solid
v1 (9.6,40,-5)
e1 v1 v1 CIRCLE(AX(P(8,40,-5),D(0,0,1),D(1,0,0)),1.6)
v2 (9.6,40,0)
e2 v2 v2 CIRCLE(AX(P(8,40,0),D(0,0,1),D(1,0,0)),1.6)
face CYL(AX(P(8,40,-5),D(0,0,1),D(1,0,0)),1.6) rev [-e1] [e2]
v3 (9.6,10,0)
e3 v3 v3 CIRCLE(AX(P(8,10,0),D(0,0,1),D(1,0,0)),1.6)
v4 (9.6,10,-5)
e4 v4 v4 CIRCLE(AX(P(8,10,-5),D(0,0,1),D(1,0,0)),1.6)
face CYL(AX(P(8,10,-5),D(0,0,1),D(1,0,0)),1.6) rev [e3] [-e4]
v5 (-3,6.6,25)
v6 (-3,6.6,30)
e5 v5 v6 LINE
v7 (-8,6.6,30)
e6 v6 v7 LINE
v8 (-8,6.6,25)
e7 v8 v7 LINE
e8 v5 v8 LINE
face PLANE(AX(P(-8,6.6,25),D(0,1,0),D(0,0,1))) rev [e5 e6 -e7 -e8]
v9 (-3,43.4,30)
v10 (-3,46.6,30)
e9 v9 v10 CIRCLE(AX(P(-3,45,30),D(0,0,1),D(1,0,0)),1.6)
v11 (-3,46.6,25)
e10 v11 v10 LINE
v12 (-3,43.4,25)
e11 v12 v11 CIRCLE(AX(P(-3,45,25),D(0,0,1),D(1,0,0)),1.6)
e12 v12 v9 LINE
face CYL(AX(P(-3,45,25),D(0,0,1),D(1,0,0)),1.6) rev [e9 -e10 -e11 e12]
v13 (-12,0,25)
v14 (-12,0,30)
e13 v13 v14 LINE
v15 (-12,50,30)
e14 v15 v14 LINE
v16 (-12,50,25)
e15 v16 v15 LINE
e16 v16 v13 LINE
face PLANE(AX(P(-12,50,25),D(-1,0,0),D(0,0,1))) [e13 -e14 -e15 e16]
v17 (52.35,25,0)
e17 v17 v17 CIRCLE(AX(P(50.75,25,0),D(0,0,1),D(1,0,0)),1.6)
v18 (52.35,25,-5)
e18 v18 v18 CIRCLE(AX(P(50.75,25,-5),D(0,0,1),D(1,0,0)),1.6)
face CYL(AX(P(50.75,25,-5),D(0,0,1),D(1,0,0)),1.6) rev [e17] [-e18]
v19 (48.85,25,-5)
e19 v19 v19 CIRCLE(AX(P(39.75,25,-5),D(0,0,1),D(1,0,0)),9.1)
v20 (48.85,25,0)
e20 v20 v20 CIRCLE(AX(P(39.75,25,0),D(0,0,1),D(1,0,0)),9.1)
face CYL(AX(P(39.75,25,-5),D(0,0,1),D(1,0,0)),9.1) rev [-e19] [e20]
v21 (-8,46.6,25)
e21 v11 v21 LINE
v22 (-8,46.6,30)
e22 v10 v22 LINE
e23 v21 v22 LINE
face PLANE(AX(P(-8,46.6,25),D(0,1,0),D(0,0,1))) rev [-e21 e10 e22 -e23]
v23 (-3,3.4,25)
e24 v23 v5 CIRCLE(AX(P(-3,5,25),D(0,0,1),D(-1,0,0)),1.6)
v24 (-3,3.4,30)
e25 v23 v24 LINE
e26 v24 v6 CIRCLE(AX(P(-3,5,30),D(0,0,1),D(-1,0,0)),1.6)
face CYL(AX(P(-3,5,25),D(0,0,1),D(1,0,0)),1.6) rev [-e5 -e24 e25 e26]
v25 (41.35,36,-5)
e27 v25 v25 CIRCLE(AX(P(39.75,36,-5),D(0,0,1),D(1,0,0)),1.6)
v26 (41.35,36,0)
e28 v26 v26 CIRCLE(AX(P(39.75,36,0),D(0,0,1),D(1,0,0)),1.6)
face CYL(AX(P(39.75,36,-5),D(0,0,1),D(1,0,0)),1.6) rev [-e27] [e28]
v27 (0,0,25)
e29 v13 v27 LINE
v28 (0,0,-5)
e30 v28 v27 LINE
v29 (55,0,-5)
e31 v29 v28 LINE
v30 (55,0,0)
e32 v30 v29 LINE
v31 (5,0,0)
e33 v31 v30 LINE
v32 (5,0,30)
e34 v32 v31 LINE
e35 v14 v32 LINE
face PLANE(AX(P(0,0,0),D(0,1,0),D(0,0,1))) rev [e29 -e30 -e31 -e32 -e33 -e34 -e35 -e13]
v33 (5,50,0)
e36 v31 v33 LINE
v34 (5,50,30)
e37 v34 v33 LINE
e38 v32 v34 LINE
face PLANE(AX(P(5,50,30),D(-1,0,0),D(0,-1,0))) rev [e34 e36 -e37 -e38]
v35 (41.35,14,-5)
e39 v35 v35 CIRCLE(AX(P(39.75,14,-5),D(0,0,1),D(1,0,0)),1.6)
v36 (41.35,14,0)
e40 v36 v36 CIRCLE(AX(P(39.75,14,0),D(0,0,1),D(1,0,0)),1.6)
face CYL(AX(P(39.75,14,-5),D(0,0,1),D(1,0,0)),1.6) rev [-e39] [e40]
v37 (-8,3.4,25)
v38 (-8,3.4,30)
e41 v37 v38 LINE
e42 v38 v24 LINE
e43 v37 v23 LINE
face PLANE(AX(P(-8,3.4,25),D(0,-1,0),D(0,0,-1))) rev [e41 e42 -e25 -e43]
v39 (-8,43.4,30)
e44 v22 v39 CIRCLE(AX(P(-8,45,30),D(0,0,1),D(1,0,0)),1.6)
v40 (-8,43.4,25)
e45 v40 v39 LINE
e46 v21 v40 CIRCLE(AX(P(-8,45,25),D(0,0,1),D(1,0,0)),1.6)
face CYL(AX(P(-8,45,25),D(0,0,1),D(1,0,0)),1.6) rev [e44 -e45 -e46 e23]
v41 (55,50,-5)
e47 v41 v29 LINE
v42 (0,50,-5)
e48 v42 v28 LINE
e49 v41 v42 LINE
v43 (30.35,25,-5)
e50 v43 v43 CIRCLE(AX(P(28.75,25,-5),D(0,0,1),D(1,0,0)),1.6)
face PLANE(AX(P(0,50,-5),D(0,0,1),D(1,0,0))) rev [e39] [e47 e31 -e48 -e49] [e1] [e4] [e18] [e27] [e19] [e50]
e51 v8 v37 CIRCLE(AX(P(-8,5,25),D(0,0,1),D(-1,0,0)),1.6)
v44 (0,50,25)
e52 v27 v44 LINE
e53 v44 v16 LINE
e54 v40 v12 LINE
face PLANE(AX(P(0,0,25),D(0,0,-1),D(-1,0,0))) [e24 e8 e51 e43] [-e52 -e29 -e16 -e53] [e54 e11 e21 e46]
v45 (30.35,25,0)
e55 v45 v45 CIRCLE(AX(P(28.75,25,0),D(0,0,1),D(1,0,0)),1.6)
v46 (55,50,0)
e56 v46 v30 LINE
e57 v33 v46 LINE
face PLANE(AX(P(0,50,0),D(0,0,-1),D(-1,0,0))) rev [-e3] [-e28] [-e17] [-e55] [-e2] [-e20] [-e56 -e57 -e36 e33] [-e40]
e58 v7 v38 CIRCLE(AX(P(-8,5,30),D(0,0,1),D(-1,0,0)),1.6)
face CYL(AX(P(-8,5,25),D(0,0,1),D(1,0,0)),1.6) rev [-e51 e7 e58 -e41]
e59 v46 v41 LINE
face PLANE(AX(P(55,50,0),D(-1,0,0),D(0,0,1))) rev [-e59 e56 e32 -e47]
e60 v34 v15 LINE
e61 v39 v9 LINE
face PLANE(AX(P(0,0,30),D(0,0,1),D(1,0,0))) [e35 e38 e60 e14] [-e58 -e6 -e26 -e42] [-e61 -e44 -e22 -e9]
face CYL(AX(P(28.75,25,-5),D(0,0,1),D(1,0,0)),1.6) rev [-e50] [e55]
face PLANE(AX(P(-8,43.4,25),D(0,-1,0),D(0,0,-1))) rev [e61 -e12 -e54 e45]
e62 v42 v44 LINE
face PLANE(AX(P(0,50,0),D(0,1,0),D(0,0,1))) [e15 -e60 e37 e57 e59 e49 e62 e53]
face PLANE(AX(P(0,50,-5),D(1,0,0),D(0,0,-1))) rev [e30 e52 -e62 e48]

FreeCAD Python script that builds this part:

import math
import FreeCAD as App
import Part
import Sketcher
from FreeCAD import Vector
Q = App.Units.Quantity

doc = App.newDocument("Part")
body = doc.addObject("PartDesign::Body", "Body")

sketch1 = doc.addObject("Sketcher::SketchObject", "Sketch")
body.addObject(sketch1)
sketch1.AttachmentSupport = (doc.XZ_Plane, [""])
sketch1.MapMode = "FlatFace"
sketch1.addGeometry([
    Part.LineSegment(Vector(0, -5, 0), Vector(0, 0, 0)),
    Part.LineSegment(Vector(0, 0, 0), Vector(55, 0, 0)),
    Part.LineSegment(Vector(55, 0, 0), Vector(55, -5, 0)),
    Part.LineSegment(Vector(55, -5, 0), Vector(0, -5, 0)),
], False)
sketch1.addConstraint([
    Sketcher.Constraint("Coincident", 0, 2, 1, 1),
    Sketcher.Constraint("Coincident", 1, 2, 2, 1),
    Sketcher.Constraint("Coincident", 2, 2, 3, 1),
    Sketcher.Constraint("Coincident", 3, 2, 0, 1),
    Sketcher.Constraint("Vertical", 0),
    Sketcher.Constraint("Horizontal", 1),
    Sketcher.Constraint("Vertical", 2),
    Sketcher.Constraint("Horizontal", 3),
    Sketcher.Constraint("Coincident", 0, 2, -1, 1),
    Sketcher.Constraint("DistanceX", 1, 1, 1, 2, Q("55 mm")),
    Sketcher.Constraint("DistanceY", 0, 1, 0, 2, Q("5 mm")),
])
pad1 = doc.addObject("PartDesign::Pad", "Pad")
body.addObject(pad1)
pad1.Profile = sketch1
pad1.Length = 50
pad1.Reversed = True

sketch2 = doc.addObject("Sketcher::SketchObject", "Sketch001")
body.addObject(sketch2)
sketch2.AttachmentSupport = (doc.XY_Plane, [""])
sketch2.MapMode = "FlatFace"
sketch2.addGeometry([
    Part.Circle(Vector(39.8, 25, 0), Vector(0, 0, 1), 9.1),
    Part.Circle(Vector(39.8, 36, 0), Vector(0, 0, 1), 1.6),
    Part.Circle(Vector(50.8, 25, 0), Vector(0, 0, 1), 1.6),
    Part.Circle(Vector(39.8, 14, 0), Vector(0, 0, 1), 1.6),
    Part.Circle(Vector(28.8, 25, 0), Vector(0, 0, 1), 1.6),
    Part.Circle(Vector(8, 40, 0), Vector(0, 0, 1), 1.6),
    Part.Circle(Vector(8, 10, 0), Vector(0, 0, 1), 1.6),
], False)
sketch2.addConstraint([
    Sketcher.Constraint("Equal", 1, 2),
    Sketcher.Constraint("Equal", 2, 3),
    Sketcher.Constraint("Equal", 3, 4),
    Sketcher.Constraint("Equal", 4, 5),
    Sketcher.Constraint("Equal", 5, 6),
    Sketcher.Constraint("Horizontal", 0, 3, 2, 3),
    Sketcher.Constraint("Horizontal", 2, 3, 4, 3),
    Sketcher.Constraint("Vertical", 0, 3, 1, 3),
    Sketcher.Constraint("Vertical", 1, 3, 3, 3),
    Sketcher.Constraint("Vertical", 5, 3, 6, 3),
    Sketcher.Constraint("Diameter", 0, Q("18.2 mm")),
    Sketcher.Constraint("Diameter", 1, Q("3.2 mm")),
    Sketcher.Constraint("DistanceY", -1, 1, 0, 3, Q("25 mm")),
    Sketcher.Constraint("DistanceY", -1, 1, 1, 3, Q("36 mm")),
    Sketcher.Constraint("DistanceY", -1, 1, 3, 3, Q("14 mm")),
    Sketcher.Constraint("DistanceX", -1, 1, 5, 3, Q("8 mm")),
    Sketcher.Constraint("DistanceY", -1, 1, 5, 3, Q("40 mm")),
    Sketcher.Constraint("DistanceY", -1, 1, 6, 3, Q("10 mm")),
    Sketcher.Constraint("DistanceX", 0, 3, 2, 3, Q("11 mm")),
    Sketcher.Constraint("DistanceX", 4, 3, 0, 3, Q("11 mm")),
    Sketcher.Constraint("DistanceX", -1, 1, 0, 3, Q("39.75 mm")),
])
pocket1 = doc.addObject("PartDesign::Pocket", "Pocket")
body.addObject(pocket1)
pocket1.Profile = sketch2
pocket1.Type = "ThroughAll"

sketch3 = doc.addObject("Sketcher::SketchObject", "Sketch002")
body.addObject(sketch3)
sketch3.AttachmentSupport = (doc.XY_Plane, [""])
sketch3.MapMode = "FlatFace"
sketch3.addGeometry([
    Part.LineSegment(Vector(0, 50, 0), Vector(0, 0, 0)),
    Part.LineSegment(Vector(0, 0, 0), Vector(5, 0, 0)),
    Part.LineSegment(Vector(5, 0, 0), Vector(5, 50, 0)),
    Part.LineSegment(Vector(5, 50, 0), Vector(0, 50, 0)),
], False)
sketch3.addConstraint([
    Sketcher.Constraint("Coincident", 0, 2, 1, 1),
    Sketcher.Constraint("Coincident", 1, 2, 2, 1),
    Sketcher.Constraint("Coincident", 2, 2, 3, 1),
    Sketcher.Constraint("Coincident", 3, 2, 0, 1),
    Sketcher.Constraint("Vertical", 0),
    Sketcher.Constraint("Horizontal", 1),
    Sketcher.Constraint("Vertical", 2),
    Sketcher.Constraint("Horizontal", 3),
    Sketcher.Constraint("Coincident", 0, 2, -1, 1),
    Sketcher.Constraint("DistanceX", 1, 1, 1, 2, Q("5 mm")),
    Sketcher.Constraint("DistanceY", 0, 2, 0, 1, Q("50 mm")),
])
pad2 = doc.addObject("PartDesign::Pad", "Pad001")
body.addObject(pad2)
pad2.Profile = sketch3
pad2.Length = 30

sketch4 = doc.addObject("Sketcher::SketchObject", "Sketch003")
body.addObject(sketch4)
sketch4.AttachmentSupport = (doc.XY_Plane, [""])
sketch4.MapMode = "FlatFace"
sketch4.AttachmentOffset = App.Placement(Vector(0, 0, 30), App.Rotation())
sketch4.addGeometry([
    Part.LineSegment(Vector(-12, 50, 0), Vector(-12, 0, 0)),
    Part.LineSegment(Vector(-12, 0, 0), Vector(5, 0, 0)),
    Part.LineSegment(Vector(5, 0, 0), Vector(5, 50, 0)),
    Part.LineSegment(Vector(5, 50, 0), Vector(-12, 50, 0)),
    Part.LineSegment(Vector(-3, 3.4, 0), Vector(-8, 3.4, 0)),
    Part.ArcOfCircle(Part.Circle(Vector(-8, 5, 0), Vector(0, 0, 1), 1.6), math.radians(90), math.radians(270)),
    Part.LineSegment(Vector(-8, 6.6, 0), Vector(-3, 6.6, 0)),
    Part.ArcOfCircle(Part.Circle(Vector(-3, 5, 0), Vector(0, 0, 1), 1.6), math.radians(-90), math.radians(90)),
    Part.ArcOfCircle(Part.Circle(Vector(-8, 45, 0), Vector(0, 0, 1), 1.6), math.radians(90), math.radians(270)),
    Part.LineSegment(Vector(-8, 46.6, 0), Vector(-3, 46.6, 0)),
    Part.ArcOfCircle(Part.Circle(Vector(-3, 45, 0), Vector(0, 0, 1), 1.6), math.radians(-90), math.radians(90)),
    Part.LineSegment(Vector(-3, 43.4, 0), Vector(-8, 43.4, 0)),
], False)
sketch4.addConstraint([
    Sketcher.Constraint("Coincident", 0, 2, 1, 1),
    Sketcher.Constraint("Coincident", 1, 2, 2, 1),
    Sketcher.Constraint("Coincident", 2, 2, 3, 1),
    Sketcher.Constraint("Coincident", 3, 2, 0, 1),
    Sketcher.Constraint("Tangent", 4, 2, 5, 2),
    Sketcher.Constraint("Tangent", 5, 1, 6, 1),
    Sketcher.Constraint("Tangent", 6, 2, 7, 2),
    Sketcher.Constraint("Tangent", 7, 1, 4, 1),
    Sketcher.Constraint("Tangent", 8, 1, 9, 1),
    Sketcher.Constraint("Tangent", 9, 2, 10, 2),
    Sketcher.Constraint("Tangent", 10, 1, 11, 1),
    Sketcher.Constraint("Tangent", 11, 2, 8, 2),
    Sketcher.Constraint("Vertical", 0),
    Sketcher.Constraint("Horizontal", 1),
    Sketcher.Constraint("Vertical", 2),
    Sketcher.Constraint("Horizontal", 3),
    Sketcher.Constraint("Horizontal", 4),
    Sketcher.Constraint("Horizontal", 6),
    Sketcher.Constraint("Horizontal", 9),
    Sketcher.Constraint("Horizontal", 11),
    Sketcher.Constraint("Equal", 7, 8),
    Sketcher.Constraint("PointOnObject", 0, 2, -1),
    Sketcher.Constraint("Vertical", 5, 3, 8, 3),
    Sketcher.Constraint("Vertical", 7, 3, 10, 3),
    Sketcher.Constraint("Radius", 5, Q("1.6 mm")),
    Sketcher.Constraint("DistanceX", 1, 1, 1, 2, Q("17 mm")),
    Sketcher.Constraint("DistanceX", 4, 2, 4, 1, Q("5 mm")),
    Sketcher.Constraint("DistanceY", 0, 2, 0, 1, Q("50 mm")),
    Sketcher.Constraint("DistanceX", 5, 3, -1, 1, Q("8 mm")),
    Sketcher.Constraint("DistanceY", -1, 1, 5, 3, Q("5 mm")),
    Sketcher.Constraint("DistanceY", -1, 1, 8, 3, Q("45 mm")),
    Sketcher.Constraint("DistanceX", 0, 2, -1, 1, Q("12 mm")),
])
pad3 = doc.addObject("PartDesign::Pad", "Pad002")
body.addObject(pad3)
pad3.Profile = sketch4
pad3.Length = 5
pad3.Reversed = True

doc.recompute()
